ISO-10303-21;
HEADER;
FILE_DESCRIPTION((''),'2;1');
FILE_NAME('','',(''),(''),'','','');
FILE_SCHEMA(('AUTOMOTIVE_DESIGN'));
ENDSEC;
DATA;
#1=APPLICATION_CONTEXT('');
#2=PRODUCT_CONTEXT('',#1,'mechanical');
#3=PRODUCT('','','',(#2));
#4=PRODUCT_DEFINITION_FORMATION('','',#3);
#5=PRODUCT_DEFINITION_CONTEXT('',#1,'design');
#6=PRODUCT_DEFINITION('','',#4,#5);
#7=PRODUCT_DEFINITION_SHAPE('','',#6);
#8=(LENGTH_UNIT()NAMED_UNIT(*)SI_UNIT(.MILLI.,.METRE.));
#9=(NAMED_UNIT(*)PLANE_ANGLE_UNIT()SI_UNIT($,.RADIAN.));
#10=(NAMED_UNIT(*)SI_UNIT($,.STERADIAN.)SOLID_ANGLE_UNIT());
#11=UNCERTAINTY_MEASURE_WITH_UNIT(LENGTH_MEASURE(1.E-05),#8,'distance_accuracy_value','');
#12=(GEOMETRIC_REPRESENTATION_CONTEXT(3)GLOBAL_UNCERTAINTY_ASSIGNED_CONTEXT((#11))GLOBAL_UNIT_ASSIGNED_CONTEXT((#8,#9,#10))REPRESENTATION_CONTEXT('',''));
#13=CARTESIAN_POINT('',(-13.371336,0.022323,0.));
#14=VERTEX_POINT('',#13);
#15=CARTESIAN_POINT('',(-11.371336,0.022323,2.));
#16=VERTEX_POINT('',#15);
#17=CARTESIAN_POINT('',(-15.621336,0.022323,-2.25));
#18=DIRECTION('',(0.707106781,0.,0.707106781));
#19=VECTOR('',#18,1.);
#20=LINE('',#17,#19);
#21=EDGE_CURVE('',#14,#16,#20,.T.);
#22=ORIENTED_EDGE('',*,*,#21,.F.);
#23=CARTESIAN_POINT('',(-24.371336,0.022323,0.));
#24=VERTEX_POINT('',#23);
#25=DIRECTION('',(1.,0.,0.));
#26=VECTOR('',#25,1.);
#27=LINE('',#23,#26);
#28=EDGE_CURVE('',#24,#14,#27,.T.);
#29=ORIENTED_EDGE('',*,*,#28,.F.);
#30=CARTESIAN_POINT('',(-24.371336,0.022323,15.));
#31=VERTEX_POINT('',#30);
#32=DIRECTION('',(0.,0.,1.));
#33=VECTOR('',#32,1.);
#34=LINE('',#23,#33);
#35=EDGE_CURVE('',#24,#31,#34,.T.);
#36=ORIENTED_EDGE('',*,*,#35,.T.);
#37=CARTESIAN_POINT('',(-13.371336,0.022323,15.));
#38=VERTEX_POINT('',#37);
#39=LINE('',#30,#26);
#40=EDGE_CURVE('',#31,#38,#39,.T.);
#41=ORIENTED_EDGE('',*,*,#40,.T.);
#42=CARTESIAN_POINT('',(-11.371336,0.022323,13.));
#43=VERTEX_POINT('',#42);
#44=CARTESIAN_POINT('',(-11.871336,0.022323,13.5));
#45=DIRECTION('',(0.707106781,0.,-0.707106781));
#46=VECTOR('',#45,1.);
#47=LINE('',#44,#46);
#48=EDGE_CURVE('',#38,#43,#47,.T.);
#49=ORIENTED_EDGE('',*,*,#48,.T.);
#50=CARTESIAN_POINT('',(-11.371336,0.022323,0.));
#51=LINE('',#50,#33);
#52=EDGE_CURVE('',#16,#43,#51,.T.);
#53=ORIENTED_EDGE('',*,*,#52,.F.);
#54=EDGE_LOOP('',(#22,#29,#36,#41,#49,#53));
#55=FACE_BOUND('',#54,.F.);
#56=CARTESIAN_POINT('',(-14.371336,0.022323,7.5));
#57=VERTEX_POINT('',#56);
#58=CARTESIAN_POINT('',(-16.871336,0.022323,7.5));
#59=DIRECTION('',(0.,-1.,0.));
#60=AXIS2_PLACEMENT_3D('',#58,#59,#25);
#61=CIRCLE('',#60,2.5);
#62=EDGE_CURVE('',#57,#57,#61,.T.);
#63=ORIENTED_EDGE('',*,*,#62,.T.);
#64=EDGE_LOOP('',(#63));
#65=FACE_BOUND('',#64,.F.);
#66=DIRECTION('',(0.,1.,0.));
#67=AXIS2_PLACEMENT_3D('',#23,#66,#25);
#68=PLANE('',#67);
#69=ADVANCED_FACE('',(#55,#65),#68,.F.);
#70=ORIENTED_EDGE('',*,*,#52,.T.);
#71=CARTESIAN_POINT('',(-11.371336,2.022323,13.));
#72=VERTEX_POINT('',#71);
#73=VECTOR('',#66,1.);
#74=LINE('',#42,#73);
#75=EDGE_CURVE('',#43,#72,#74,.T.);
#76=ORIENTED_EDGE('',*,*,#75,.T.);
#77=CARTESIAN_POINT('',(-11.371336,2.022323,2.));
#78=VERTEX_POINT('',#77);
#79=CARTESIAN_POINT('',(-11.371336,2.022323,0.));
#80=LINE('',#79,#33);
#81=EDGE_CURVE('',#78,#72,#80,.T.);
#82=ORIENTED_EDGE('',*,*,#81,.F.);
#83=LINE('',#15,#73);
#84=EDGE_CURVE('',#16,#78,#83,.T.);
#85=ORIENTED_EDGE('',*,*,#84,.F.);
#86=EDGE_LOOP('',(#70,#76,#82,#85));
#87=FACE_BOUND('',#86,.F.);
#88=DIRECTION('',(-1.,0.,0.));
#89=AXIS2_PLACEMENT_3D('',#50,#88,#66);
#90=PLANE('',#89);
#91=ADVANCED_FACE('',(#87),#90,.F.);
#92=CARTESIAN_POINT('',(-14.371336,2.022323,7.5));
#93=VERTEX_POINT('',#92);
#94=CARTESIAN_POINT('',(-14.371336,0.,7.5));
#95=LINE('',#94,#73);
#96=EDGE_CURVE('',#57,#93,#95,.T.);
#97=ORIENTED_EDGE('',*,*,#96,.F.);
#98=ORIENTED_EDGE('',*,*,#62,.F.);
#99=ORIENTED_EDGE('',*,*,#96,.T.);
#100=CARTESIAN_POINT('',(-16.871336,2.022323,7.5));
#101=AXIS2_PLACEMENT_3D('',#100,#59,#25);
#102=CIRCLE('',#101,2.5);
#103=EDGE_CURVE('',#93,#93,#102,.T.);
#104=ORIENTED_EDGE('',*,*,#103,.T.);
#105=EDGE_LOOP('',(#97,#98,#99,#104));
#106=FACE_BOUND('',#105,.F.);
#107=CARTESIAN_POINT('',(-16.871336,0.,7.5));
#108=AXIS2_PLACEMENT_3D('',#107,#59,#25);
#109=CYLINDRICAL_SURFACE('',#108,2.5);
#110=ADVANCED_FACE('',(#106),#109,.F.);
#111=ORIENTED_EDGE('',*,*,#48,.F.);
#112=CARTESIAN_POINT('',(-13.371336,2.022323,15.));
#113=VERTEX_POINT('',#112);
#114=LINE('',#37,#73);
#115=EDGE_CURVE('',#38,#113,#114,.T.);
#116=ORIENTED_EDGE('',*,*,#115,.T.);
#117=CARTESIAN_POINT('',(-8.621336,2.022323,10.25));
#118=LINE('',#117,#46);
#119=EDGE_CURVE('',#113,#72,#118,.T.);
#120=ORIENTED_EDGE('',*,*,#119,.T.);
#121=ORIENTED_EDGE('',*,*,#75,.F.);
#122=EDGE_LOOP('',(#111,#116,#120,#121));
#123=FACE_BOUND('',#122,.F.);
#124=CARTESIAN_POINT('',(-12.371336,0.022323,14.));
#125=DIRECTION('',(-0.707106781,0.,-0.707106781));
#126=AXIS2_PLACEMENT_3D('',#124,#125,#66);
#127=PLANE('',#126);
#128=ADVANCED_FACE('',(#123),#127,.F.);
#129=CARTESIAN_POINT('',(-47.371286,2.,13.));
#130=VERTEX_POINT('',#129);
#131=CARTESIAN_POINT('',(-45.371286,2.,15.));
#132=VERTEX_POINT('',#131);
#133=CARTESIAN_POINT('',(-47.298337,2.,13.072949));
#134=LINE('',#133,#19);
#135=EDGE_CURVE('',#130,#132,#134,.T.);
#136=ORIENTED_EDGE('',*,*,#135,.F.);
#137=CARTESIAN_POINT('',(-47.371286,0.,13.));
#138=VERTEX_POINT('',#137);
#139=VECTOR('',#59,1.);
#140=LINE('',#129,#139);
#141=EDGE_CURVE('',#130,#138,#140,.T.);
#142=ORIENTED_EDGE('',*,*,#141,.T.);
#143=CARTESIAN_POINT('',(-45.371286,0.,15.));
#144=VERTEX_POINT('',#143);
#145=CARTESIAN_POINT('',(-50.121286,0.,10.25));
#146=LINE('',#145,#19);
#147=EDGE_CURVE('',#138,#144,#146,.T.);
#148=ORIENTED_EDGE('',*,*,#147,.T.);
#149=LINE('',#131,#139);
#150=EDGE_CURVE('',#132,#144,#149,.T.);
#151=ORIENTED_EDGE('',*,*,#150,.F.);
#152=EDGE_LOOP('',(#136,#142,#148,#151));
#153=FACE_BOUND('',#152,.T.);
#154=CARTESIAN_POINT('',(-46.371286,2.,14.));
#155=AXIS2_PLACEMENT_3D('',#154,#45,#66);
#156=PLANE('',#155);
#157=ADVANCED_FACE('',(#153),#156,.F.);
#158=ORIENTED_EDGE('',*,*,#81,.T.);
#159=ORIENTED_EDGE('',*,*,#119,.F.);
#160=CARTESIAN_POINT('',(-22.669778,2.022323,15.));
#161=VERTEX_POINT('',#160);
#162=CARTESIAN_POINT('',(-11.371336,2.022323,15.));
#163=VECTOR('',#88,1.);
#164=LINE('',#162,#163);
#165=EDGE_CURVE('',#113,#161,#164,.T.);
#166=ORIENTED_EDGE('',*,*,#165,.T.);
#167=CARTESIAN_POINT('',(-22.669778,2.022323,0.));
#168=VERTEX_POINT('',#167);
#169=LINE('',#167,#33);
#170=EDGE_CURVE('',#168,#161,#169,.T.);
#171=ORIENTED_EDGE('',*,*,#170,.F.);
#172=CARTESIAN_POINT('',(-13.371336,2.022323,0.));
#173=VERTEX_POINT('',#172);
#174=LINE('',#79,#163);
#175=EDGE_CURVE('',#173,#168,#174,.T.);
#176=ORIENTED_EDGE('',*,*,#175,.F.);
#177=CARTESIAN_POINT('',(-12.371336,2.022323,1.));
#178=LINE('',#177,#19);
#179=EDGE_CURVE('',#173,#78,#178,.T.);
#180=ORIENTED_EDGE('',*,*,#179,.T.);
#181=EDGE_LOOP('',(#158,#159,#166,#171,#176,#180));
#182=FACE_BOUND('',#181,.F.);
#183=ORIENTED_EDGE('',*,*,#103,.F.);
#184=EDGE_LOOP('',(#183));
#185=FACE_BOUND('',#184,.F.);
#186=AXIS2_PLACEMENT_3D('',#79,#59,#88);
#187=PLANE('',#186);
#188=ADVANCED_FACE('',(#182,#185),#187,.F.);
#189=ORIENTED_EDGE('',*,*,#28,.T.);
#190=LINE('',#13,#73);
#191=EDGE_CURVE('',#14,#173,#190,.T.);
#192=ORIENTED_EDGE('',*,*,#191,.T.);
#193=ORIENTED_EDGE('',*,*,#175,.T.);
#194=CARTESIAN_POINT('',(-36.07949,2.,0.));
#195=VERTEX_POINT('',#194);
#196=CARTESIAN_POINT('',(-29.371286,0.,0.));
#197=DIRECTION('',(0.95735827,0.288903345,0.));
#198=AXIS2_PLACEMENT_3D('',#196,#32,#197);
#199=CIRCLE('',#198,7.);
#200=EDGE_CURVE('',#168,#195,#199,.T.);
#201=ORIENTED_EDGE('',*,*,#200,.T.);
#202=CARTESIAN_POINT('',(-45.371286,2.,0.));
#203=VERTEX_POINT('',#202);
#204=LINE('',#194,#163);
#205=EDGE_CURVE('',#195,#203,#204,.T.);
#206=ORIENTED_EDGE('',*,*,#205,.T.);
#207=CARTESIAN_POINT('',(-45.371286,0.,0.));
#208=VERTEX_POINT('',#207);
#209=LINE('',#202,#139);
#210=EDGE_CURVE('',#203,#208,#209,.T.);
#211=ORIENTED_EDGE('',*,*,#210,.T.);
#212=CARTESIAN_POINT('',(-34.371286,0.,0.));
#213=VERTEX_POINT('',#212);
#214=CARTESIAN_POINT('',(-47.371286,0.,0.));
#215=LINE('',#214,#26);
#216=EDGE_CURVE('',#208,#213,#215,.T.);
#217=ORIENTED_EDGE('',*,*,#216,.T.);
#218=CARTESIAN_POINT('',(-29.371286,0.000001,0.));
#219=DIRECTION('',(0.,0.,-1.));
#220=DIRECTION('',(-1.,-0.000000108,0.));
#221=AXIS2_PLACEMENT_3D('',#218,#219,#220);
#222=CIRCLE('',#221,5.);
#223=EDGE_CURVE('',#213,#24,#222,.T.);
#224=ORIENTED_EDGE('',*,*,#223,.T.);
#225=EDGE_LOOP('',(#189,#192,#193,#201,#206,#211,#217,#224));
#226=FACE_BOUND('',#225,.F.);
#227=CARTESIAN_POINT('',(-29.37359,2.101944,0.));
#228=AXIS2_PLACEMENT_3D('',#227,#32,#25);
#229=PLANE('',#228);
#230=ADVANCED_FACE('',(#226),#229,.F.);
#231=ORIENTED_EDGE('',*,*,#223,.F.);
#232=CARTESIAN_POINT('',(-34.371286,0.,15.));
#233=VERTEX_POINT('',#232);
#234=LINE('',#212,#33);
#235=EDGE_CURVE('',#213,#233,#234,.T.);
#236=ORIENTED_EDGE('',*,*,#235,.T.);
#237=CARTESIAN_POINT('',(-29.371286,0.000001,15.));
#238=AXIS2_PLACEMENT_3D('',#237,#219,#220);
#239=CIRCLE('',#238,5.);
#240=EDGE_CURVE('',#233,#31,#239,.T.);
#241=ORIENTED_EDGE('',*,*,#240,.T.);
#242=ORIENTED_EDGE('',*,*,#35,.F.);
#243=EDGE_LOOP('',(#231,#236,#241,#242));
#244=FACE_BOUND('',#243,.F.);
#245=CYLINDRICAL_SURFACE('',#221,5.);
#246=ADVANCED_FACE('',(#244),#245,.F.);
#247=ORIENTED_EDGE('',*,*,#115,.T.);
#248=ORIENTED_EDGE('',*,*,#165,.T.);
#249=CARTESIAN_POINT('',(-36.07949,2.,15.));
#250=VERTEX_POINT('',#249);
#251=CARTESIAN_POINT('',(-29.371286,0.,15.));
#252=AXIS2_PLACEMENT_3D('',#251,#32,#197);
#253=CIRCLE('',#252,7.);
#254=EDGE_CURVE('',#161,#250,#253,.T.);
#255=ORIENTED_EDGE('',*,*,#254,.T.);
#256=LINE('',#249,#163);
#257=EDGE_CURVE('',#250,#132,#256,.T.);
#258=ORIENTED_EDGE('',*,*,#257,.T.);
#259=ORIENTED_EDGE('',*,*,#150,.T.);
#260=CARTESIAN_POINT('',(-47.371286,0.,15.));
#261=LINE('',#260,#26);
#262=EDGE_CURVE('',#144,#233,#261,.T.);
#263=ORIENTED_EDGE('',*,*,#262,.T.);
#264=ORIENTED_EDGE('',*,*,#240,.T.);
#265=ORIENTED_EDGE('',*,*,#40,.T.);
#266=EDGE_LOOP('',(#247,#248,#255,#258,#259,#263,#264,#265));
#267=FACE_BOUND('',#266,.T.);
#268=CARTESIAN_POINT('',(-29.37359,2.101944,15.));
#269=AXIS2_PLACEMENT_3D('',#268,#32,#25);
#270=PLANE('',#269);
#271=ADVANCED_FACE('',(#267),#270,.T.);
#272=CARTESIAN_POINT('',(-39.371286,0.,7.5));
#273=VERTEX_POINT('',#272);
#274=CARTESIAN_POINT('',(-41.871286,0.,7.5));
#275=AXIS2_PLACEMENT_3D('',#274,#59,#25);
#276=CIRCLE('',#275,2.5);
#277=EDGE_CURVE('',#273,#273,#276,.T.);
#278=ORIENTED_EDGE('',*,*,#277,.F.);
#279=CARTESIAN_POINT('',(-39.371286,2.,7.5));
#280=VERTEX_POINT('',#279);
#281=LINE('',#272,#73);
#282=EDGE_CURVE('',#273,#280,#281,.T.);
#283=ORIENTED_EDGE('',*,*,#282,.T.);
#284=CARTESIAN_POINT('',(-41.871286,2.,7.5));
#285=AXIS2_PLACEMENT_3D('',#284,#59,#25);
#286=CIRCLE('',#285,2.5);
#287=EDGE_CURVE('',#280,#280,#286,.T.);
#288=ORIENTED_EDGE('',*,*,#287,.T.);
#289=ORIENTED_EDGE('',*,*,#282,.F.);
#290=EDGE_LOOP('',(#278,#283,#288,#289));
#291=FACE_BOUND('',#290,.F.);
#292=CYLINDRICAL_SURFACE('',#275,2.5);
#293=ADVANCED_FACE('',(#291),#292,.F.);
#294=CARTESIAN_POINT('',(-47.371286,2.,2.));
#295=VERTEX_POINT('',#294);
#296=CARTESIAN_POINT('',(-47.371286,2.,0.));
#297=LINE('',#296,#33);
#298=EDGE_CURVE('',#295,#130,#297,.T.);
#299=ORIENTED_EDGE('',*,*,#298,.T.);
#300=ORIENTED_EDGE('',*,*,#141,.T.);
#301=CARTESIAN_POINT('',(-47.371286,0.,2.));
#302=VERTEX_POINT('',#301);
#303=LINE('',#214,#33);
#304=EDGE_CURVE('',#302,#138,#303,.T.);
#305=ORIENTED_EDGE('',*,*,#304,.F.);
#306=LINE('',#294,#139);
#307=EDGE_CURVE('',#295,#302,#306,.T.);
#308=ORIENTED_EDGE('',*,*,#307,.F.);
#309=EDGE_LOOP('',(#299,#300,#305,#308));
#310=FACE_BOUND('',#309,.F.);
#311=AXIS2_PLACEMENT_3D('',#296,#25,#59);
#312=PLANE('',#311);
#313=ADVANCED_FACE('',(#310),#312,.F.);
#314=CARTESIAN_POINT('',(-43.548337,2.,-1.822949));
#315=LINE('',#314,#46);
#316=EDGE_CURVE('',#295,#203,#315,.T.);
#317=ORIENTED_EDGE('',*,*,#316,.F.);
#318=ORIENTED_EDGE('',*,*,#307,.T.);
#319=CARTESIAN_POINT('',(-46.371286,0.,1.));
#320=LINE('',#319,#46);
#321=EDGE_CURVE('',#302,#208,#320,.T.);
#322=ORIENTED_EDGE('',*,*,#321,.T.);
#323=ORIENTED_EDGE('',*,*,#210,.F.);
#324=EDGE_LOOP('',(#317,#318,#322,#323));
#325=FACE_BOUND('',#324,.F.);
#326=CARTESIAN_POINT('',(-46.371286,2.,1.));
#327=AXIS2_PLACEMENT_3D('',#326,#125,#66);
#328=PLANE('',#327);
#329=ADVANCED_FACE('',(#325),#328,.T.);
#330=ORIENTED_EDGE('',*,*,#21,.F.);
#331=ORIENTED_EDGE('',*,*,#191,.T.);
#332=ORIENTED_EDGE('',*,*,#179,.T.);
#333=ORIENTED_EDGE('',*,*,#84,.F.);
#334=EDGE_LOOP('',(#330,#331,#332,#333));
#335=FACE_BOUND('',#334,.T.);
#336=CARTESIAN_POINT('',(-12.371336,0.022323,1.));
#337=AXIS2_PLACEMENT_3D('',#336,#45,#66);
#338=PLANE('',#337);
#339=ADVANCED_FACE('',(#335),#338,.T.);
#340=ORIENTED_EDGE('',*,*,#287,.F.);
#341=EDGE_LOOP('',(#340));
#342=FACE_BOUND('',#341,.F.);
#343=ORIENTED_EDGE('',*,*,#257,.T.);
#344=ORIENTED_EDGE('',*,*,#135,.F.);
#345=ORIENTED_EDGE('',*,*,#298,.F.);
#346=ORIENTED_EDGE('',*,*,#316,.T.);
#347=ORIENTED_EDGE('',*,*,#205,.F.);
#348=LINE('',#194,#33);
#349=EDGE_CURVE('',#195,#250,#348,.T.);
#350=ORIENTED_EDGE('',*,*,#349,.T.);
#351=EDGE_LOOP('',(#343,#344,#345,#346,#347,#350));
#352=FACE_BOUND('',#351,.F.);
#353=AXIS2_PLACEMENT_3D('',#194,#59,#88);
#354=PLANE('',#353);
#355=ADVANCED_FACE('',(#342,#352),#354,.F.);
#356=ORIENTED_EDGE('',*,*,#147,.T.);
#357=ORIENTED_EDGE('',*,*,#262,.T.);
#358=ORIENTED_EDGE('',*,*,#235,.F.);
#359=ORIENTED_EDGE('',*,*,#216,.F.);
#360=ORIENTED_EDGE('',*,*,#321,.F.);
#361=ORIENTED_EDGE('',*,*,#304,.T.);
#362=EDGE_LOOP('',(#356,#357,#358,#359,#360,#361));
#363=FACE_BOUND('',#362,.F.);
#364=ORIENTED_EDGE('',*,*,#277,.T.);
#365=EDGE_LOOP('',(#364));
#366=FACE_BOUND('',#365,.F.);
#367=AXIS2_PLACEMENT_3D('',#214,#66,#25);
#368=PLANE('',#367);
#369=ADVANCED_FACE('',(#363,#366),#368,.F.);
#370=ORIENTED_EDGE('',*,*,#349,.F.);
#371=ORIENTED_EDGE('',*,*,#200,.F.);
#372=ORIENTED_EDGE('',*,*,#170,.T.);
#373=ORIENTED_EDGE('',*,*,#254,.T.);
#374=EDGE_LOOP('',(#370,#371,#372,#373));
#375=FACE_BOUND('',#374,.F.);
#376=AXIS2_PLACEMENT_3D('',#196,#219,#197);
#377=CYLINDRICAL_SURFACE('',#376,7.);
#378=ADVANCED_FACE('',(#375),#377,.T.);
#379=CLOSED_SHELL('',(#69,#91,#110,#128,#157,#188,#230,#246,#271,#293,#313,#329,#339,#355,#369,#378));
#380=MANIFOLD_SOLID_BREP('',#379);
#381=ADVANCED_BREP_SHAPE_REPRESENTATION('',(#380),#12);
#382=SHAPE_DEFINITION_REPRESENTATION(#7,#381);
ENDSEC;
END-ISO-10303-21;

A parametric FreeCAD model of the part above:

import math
import FreeCAD as App
import Part
import Sketcher
from FreeCAD import Vector


def edges_at(feature, points):
    """Names of the edges that pass closest to the given points."""
    edges = feature.Shape.Edges
    near = lambda p: min(range(len(edges)), key=lambda i: edges[i].distToShape(Part.Vertex(*p))[0])
    return sorted({f"Edge{near(p) + 1}" for p in points})

doc = App.newDocument("Part")
body = doc.addObject("PartDesign::Body", "Body")

sketch1 = body.newObject("Sketcher::SketchObject", "Sketch")
sketch1.AttachmentSupport = (doc.getObject("XY_Plane"), [""])
sketch1.MapMode = "FlatFace"
sketch1.addGeometry(Part.LineSegment(Vector(-47.4, 2, 0), Vector(-47.4, 0, 0)), False)
sketch1.addGeometry(Part.LineSegment(Vector(-47.4, 0, 0), Vector(-34.4, 0, 0)), False)
sketch1.addGeometry(Part.ArcOfCircle(Part.Circle(Vector(-29.4, 0, 0), Vector(0, 0, 1), 5), math.radians(0), math.radians(180)), False)
sketch1.addGeometry(Part.LineSegment(Vector(-24.4, 0, 0), Vector(-11.4, 0, 0)), False)
sketch1.addGeometry(Part.LineSegment(Vector(-11.4, 0, 0), Vector(-11.4, 2, 0)), False)
sketch1.addGeometry(Part.LineSegment(Vector(-11.4, 2, 0), Vector(-22.7, 2, 0)), False)
sketch1.addGeometry(Part.ArcOfCircle(Part.Circle(Vector(-29.4, 0, 0), Vector(0, 0, 1), 7), math.radians(17), math.radians(163)), False)
sketch1.addGeometry(Part.LineSegment(Vector(-36.1, 2, 0), Vector(-47.4, 2, 0)), False)
sketch1.addConstraint(Sketcher.Constraint("Coincident", 0, 2, 1, 1))
sketch1.addConstraint(Sketcher.Constraint("Coincident", 1, 2, 2, 2))
sketch1.addConstraint(Sketcher.Constraint("Coincident", 2, 1, 3, 1))
sketch1.addConstraint(Sketcher.Constraint("Coincident", 3, 2, 4, 1))
sketch1.addConstraint(Sketcher.Constraint("Coincident", 4, 2, 5, 1))
sketch1.addConstraint(Sketcher.Constraint("Coincident", 5, 2, 6, 1))
sketch1.addConstraint(Sketcher.Constraint("Coincident", 6, 2, 7, 1))
sketch1.addConstraint(Sketcher.Constraint("Coincident", 7, 2, 0, 1))
sketch1.addConstraint(Sketcher.Constraint("Vertical", 0))
sketch1.addConstraint(Sketcher.Constraint("Horizontal", 1))
sketch1.addConstraint(Sketcher.Constraint("Horizontal", 3))
sketch1.addConstraint(Sketcher.Constraint("Vertical", 4))
sketch1.addConstraint(Sketcher.Constraint("Horizontal", 5))
sketch1.addConstraint(Sketcher.Constraint("Horizontal", 7))
sketch1.addConstraint(Sketcher.Constraint("Coincident", 6, 3, 2, 3))
sketch1.addConstraint(Sketcher.Constraint("PointOnObject", 2, 3, -1))
sketch1.addConstraint(Sketcher.Constraint("PointOnObject", 0, 2, -1))
sketch1.addConstraint(Sketcher.Constraint("Equal", 1, 3))
sketch1.addConstraint(Sketcher.Constraint("Equal", 0, 4))
sketch1.addConstraint(Sketcher.Constraint("Radius", 2, 5.0))
sketch1.addConstraint(Sketcher.Constraint("Radius", 6, 7.0))
sketch1.addConstraint(Sketcher.Constraint("DistanceX", 1, 1, 1, 2, 13.0))
sketch1.addConstraint(Sketcher.Constraint("DistanceY", 0, 2, 0, 1, 2.0))
sketch1.addConstraint(Sketcher.Constraint("DistanceX", 5, 2, 5, 1, 11.298442))
sketch1.addConstraint(Sketcher.Constraint("DistanceX", 5, 2, -1, 1, 22.669778))
pad1 = body.newObject("PartDesign::Pad", "Pad")
pad1.Profile = sketch1
pad1.Length = 15

sketch2 = body.newObject("Sketcher::SketchObject", "Sketch001")
sketch2.AttachmentSupport = (doc.getObject("XZ_Plane"), [""])
sketch2.MapMode = "FlatFace"
sketch2.addGeometry(Part.Circle(Vector(-41.9, 7.5, 0), Vector(0, 0, 1), 2.5), False)
sketch2.addGeometry(Part.Circle(Vector(-16.9, 7.5, 0), Vector(0, 0, 1), 2.5), False)
sketch2.addConstraint(Sketcher.Constraint("Equal", 0, 1))
sketch2.addConstraint(Sketcher.Constraint("Horizontal", 0, 3, 1, 3))
sketch2.addConstraint(Sketcher.Constraint("Diameter", 0, 5.0))
sketch2.addConstraint(Sketcher.Constraint("DistanceY", -1, 1, 0, 3, 7.5))
sketch2.addConstraint(Sketcher.Constraint("DistanceX", 0, 3, 1, 3, 24.99995))
sketch2.addConstraint(Sketcher.Constraint("DistanceX", 0, 3, -1, 1, 41.871286))
pocket1 = body.newObject("PartDesign::Pocket", "Pocket")
pocket1.Profile = sketch2
pocket1.Type = "ThroughAll"
doc.recompute()

chamfer = body.newObject("PartDesign::Chamfer", "Chamfer")
chamfer.Base = (pocket1, edges_at(pocket1, [
    (-11.371, 1.022, 15),
    (-47.371, 1, 15),
    (-11.371, 1.022, 0),
    (-47.371, 1, 0),
]))
chamfer.Size = 2

doc.recompute()
